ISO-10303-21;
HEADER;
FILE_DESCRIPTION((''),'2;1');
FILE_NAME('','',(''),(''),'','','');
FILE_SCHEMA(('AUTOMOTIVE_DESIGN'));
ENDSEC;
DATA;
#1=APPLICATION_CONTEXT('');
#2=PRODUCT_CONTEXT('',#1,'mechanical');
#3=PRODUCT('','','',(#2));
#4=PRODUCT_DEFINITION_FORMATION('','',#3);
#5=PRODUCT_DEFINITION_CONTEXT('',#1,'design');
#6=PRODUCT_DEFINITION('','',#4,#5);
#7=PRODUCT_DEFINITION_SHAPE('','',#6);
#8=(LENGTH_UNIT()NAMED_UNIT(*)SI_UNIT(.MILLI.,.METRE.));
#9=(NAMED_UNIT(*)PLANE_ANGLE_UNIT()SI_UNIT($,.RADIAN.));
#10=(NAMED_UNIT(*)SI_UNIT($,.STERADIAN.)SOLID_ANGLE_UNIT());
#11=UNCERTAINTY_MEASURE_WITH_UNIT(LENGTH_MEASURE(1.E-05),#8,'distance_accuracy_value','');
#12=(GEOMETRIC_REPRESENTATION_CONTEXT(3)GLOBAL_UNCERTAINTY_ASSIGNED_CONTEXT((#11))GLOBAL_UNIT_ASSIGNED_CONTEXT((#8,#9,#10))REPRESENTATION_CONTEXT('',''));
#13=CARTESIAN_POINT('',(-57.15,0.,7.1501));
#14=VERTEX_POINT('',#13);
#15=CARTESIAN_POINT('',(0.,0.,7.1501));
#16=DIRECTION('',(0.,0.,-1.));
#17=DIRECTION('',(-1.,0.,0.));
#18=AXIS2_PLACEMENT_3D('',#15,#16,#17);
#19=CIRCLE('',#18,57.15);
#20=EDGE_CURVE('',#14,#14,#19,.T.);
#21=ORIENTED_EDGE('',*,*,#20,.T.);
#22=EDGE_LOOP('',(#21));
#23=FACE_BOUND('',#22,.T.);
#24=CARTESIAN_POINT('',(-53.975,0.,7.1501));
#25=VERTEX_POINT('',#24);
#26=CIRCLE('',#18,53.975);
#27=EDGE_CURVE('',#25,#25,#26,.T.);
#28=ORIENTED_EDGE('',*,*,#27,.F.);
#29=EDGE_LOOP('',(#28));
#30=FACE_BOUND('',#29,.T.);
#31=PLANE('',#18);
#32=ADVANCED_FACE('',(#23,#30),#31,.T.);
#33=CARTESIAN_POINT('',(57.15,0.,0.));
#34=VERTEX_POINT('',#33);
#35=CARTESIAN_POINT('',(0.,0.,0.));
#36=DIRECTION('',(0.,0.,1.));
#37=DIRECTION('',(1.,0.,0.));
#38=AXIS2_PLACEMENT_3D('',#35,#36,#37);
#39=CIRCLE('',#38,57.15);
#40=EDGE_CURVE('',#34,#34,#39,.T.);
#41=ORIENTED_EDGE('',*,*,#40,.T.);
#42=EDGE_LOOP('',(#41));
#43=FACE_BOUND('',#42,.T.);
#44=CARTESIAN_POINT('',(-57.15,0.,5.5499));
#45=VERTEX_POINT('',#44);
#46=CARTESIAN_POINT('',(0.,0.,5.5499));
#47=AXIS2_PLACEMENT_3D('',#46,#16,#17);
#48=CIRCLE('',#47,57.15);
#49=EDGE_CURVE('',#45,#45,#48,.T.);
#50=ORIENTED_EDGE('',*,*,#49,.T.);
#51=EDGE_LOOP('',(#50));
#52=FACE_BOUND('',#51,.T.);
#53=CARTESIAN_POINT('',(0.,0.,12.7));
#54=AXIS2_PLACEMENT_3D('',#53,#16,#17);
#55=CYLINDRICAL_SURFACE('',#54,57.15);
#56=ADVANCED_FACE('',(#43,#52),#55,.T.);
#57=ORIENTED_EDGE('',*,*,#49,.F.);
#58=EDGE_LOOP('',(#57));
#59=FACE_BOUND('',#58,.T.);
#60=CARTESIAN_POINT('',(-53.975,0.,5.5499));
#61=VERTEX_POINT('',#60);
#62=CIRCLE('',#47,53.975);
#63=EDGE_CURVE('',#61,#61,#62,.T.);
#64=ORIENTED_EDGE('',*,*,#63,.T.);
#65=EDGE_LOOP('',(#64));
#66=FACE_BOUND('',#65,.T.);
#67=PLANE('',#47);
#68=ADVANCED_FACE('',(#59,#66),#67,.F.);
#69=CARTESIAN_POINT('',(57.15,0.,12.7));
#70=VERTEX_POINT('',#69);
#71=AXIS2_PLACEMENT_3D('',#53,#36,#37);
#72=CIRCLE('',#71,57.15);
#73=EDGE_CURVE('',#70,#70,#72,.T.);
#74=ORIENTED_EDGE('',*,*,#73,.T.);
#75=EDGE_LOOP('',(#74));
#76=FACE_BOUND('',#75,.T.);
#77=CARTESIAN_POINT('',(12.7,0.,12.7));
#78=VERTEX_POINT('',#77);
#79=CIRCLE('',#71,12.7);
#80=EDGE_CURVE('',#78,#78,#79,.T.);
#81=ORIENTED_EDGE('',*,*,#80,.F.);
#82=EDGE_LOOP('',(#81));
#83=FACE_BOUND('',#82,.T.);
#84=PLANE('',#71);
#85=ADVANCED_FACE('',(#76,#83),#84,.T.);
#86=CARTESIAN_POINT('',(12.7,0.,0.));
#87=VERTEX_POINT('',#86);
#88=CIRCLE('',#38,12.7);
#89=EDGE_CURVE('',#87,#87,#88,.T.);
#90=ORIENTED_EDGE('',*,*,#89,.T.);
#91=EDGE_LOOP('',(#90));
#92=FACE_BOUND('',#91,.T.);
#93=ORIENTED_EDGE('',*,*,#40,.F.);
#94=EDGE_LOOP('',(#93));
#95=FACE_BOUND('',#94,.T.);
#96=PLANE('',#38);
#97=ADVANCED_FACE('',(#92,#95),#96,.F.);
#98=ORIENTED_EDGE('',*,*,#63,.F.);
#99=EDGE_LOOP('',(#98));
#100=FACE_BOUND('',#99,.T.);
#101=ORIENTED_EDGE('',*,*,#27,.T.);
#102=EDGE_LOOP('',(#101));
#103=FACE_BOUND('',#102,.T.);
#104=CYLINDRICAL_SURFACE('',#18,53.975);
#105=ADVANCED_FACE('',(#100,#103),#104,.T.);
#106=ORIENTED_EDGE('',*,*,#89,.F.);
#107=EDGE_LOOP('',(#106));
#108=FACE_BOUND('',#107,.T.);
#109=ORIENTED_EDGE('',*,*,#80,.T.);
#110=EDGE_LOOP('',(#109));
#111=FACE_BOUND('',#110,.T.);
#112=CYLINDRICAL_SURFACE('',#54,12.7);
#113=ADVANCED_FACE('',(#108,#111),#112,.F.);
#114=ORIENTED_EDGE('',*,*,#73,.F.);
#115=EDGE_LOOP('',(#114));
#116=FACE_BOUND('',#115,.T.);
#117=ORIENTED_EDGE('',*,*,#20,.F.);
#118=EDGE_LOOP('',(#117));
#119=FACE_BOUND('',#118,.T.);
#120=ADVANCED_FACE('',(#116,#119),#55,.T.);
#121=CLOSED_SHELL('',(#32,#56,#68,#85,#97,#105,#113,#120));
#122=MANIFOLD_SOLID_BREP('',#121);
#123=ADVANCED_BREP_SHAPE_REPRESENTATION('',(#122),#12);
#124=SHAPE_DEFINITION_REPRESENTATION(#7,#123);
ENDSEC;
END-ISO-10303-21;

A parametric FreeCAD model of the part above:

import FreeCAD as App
import Part
import Sketcher

V = App.Vector
Q = App.Units.Quantity

doc = App.newDocument("Part")
params = doc.addObject("Spreadsheet::Sheet", "Params")
for row, (alias, value) in enumerate([
    ("sketch1_diameter", "1 in"),
    ("sketch1_diameter2", "4.5 in"),
    ("pad1_length", "0.5 in"),
    ("sketch2_diameter", "4.5 in"),
    ("sketch2_diameter2", "4.25 in"),
    ("pocket1_length", "0.063 in"),
], start=1):
    params.set(f"A{row}", alias)
    params.set(f"B{row}", "=" + value)
    params.setAlias(f"B{row}", alias)

body = doc.addObject("PartDesign::Body", "Body")

# Sketch on XY plane
sketch1 = doc.addObject("Sketcher::SketchObject", "Sketch")
body.addObject(sketch1)
sketch1.AttachmentSupport = (doc.XY_Plane, [""])
sketch1.MapMode = "FlatFace"
sketch1.addGeometry([
    Part.Circle(V(0, 0, 0), V(0, 0, 1), 57),
    Part.Circle(V(0, 0, 0), V(0, 0, 1), 13),
], False)
sketch1.addConstraint([
    Sketcher.Constraint("Coincident", 0, 3, -1, 1),
    Sketcher.Constraint("Coincident", 1, 3, -1, 1),
    Sketcher.Constraint("Diameter", 1, Q("1 in")),
    Sketcher.Constraint("Diameter", 0, Q("4.5 in")),
])
sketch1.setExpression("Constraints[2]", "Params.sketch1_diameter")
sketch1.setExpression("Constraints[3]", "Params.sketch1_diameter2")
pad1 = doc.addObject("PartDesign::Pad", "Pad")
body.addObject(pad1)
pad1.Profile = sketch1
pad1.setExpression("Length", "Params.pad1_length")

# Sketch on XY plane
sketch2 = doc.addObject("Sketcher::SketchObject", "Sketch001")
body.addObject(sketch2)
sketch2.AttachmentSupport = (doc.XY_Plane, [""])
sketch2.MapMode = "FlatFace"
sketch2.AttachmentOffset = App.Placement(V(0, 0, 0.25 * 25.4), App.Rotation())
sketch2.addGeometry([
    Part.Circle(V(0, 0, 0), V(0, 0, 1), 57),
    Part.Circle(V(0, 0, 0), V(0, 0, 1), 54),
], False)
sketch2.addConstraint([
    Sketcher.Constraint("Coincident", 0, 3, -1, 1),
    Sketcher.Constraint("Coincident", 1, 3, -1, 1),
    Sketcher.Constraint("Diameter", 0, Q("4.5 in")),
    Sketcher.Constraint("Diameter", 1, Q("4.25 in")),
])
sketch2.setExpression("Constraints[2]", "Params.sketch2_diameter")
sketch2.setExpression("Constraints[3]", "Params.sketch2_diameter2")
pocket1 = doc.addObject("PartDesign::Pocket", "Pocket")
body.addObject(pocket1)
pocket1.Profile = sketch2
pocket1.setExpression("Length", "Params.pocket1_length")
pocket1.Midplane = True

doc.recompute()
